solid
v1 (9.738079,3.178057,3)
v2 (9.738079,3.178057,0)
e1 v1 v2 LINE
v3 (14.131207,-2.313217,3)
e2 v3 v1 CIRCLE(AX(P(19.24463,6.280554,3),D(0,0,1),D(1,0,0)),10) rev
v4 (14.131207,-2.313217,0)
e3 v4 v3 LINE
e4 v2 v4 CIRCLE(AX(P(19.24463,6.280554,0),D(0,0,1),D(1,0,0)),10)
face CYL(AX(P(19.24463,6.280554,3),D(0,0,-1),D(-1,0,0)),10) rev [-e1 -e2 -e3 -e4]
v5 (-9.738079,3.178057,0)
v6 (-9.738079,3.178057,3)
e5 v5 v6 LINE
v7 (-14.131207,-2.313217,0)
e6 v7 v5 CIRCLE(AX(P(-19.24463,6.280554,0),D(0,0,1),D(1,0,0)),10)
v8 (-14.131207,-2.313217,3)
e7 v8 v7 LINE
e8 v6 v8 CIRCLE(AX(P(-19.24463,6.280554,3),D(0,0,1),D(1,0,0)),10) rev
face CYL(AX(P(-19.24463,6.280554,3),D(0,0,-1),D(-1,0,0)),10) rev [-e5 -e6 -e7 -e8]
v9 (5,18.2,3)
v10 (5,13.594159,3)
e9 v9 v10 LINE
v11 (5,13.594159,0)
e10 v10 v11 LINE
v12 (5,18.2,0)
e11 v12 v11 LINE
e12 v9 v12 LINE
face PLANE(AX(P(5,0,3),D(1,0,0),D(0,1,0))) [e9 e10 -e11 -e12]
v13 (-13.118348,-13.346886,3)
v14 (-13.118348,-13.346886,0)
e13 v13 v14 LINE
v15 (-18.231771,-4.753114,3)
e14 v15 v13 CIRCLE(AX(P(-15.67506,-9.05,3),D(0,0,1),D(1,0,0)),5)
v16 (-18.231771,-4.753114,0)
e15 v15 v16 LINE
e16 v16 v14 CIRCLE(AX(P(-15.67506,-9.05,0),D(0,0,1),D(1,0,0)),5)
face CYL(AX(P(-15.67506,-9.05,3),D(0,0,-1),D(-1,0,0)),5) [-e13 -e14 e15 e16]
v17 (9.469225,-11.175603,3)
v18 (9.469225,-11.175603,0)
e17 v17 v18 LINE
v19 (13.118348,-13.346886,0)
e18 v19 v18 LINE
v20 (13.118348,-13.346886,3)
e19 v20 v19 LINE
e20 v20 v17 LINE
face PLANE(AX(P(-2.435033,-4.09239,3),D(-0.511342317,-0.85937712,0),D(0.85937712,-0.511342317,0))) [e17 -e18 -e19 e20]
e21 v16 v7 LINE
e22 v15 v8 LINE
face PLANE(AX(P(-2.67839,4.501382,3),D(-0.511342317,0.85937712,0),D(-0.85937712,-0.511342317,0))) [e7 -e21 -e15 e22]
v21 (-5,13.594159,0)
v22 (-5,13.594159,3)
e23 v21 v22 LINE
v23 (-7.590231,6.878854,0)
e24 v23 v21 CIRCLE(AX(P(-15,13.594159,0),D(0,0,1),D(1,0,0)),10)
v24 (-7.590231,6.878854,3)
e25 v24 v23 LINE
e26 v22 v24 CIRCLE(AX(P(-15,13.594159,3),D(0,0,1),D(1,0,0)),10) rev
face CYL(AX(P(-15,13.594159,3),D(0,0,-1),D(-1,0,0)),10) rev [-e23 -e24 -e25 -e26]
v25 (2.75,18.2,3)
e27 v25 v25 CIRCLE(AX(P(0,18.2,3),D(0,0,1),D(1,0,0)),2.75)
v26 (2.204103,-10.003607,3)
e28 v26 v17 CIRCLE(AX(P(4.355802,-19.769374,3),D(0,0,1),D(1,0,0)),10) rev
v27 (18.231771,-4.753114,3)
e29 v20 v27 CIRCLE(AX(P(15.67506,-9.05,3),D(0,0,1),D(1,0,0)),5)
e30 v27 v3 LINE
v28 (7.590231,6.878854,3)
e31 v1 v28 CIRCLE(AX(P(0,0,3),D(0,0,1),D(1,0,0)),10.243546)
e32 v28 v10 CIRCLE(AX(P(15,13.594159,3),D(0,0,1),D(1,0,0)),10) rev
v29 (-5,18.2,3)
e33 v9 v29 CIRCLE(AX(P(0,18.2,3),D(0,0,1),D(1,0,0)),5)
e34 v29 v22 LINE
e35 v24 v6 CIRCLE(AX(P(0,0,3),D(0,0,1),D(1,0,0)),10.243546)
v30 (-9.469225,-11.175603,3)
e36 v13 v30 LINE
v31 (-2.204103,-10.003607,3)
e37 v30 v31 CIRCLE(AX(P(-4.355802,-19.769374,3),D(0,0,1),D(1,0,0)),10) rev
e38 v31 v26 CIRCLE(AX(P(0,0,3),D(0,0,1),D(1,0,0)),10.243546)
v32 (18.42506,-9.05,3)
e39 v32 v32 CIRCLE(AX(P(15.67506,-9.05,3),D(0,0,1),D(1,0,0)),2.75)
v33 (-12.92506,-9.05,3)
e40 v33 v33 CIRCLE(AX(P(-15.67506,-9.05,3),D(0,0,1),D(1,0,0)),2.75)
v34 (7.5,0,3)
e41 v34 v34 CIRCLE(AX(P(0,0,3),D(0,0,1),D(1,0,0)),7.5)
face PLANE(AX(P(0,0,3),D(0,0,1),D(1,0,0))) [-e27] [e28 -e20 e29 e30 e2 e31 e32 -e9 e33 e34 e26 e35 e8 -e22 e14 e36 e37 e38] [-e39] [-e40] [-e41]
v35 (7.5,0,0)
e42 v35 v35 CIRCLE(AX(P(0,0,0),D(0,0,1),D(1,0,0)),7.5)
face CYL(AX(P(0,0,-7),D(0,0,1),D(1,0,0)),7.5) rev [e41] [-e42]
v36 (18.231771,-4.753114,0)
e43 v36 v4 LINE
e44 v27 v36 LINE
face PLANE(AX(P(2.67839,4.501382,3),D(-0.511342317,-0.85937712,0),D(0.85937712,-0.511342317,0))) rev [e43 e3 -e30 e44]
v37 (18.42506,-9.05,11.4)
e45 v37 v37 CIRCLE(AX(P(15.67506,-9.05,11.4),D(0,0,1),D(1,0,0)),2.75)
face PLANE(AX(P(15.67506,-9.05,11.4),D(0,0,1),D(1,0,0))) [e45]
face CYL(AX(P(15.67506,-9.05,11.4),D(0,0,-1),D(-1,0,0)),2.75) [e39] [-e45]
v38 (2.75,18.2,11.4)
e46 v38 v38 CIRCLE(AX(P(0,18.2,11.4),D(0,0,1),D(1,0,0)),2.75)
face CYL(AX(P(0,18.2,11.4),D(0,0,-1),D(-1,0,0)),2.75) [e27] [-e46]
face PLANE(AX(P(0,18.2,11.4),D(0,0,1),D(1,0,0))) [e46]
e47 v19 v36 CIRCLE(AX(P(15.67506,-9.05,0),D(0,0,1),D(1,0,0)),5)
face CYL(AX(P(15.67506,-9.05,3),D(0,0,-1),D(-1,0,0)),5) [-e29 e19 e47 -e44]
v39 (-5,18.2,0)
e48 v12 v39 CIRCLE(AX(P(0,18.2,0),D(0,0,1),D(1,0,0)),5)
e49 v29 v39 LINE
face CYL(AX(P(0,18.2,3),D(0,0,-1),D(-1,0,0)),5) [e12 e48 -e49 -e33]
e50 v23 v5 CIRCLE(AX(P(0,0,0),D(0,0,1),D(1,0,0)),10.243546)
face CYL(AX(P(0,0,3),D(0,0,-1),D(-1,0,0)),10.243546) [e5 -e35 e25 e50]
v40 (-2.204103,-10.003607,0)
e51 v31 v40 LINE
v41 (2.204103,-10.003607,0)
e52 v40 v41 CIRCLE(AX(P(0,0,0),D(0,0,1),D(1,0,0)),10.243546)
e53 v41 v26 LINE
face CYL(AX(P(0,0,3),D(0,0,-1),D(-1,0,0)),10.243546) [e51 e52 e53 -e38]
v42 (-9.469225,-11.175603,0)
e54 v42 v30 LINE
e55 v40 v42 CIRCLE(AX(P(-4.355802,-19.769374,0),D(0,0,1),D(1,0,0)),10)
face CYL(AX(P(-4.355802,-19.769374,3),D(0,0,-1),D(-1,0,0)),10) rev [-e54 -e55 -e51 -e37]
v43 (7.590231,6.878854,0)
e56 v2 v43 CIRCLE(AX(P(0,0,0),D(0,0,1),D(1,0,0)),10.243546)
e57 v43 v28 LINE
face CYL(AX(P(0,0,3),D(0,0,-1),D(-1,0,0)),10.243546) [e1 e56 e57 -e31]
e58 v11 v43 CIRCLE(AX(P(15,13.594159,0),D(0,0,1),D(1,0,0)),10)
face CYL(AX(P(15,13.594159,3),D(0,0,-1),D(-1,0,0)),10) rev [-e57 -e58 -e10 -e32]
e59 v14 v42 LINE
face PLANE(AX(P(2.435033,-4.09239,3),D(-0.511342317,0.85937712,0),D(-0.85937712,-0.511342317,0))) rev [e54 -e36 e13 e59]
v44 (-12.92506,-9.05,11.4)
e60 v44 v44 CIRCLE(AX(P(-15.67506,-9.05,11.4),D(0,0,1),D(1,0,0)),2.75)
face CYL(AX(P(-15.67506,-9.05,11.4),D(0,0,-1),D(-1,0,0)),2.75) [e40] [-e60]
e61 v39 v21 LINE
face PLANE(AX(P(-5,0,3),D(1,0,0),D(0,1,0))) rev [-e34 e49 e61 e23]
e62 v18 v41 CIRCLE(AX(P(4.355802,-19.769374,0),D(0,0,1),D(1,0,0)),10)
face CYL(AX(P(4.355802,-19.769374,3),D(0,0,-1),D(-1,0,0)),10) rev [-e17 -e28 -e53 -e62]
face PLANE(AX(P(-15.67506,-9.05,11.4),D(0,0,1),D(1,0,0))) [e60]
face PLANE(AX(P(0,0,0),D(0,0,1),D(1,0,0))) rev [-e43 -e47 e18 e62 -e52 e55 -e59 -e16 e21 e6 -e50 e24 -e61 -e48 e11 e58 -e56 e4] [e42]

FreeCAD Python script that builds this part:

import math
import FreeCAD as App
import Part
import Sketcher


def edges_at(feature, points):
    """Names of the edges that pass closest to the given points."""
    edges = feature.Shape.Edges
    near = lambda p: min(range(len(edges)), key=lambda i: edges[i].distToShape(Part.Vertex(*p))[0])
    return sorted({f"Edge{near(p) + 1}" for p in points})

doc = App.newDocument("Part")
body = doc.addObject("PartDesign::Body", "Body")

# Sketch on XY plane
sketch1 = body.newObject("Sketcher::SketchObject", "Sketch")
sketch1.AttachmentSupport = (doc.getObject("XY_Plane"), [""])
sketch1.MapMode = "FlatFace"
sketch1.addGeometry([
    Part.LineSegment(App.Vector(-13, -13, 0), App.Vector(-5, -9, 0)),  # 0
    Part.ArcOfCircle(Part.Circle(App.Vector(0, 0, 0), App.Vector(0, 0, 1), 10), math.radians(-122), math.radians(-58)),  # 1
    Part.LineSegment(App.Vector(5, -9, 0), App.Vector(13, -13, 0)),  # 2
    Part.ArcOfCircle(Part.Circle(App.Vector(16, -9, 0), App.Vector(0, 0, 1), 5), math.radians(-121), math.radians(59)),  # 3
    Part.LineSegment(App.Vector(18, -5, 0), App.Vector(10, 0, 0)),  # 4
    Part.ArcOfCircle(Part.Circle(App.Vector(0, 0, 0), App.Vector(0, 0, 1), 10), math.radians(0), math.radians(61)),  # 5
    Part.LineSegment(App.Vector(5, 9, 0), App.Vector(5, 18, 0)),  # 6
    Part.ArcOfCircle(Part.Circle(App.Vector(0, 18, 0), App.Vector(0, 0, 1), 5), math.radians(0), math.radians(180)),  # 7
    Part.LineSegment(App.Vector(-5, 18, 0), App.Vector(-5, 9, 0)),  # 8
    Part.ArcOfCircle(Part.Circle(App.Vector(0, 0, 0), App.Vector(0, 0, 1), 10), math.radians(119), math.radians(180)),  # 9
    Part.LineSegment(App.Vector(-10, 0, 0), App.Vector(-18, -5, 0)),  # 10
    Part.ArcOfCircle(Part.Circle(App.Vector(-16, -9, 0), App.Vector(0, 0, 1), 5), math.radians(121), math.radians(301)),  # 11
], False)
sketch1.addConstraint([
    Sketcher.Constraint("Coincident", 0, 2, 1, 1),
    Sketcher.Constraint("Coincident", 1, 2, 2, 1),
    Sketcher.Constraint("Tangent", 2, 2, 3, 1),
    Sketcher.Constraint("Tangent", 3, 2, 4, 1),
    Sketcher.Constraint("Coincident", 4, 2, 5, 1),
    Sketcher.Constraint("Coincident", 5, 2, 6, 1),
    Sketcher.Constraint("Tangent", 6, 2, 7, 1),
    Sketcher.Constraint("Tangent", 7, 2, 8, 1),
    Sketcher.Constraint("Coincident", 8, 2, 9, 1),
    Sketcher.Constraint("Coincident", 9, 2, 10, 1),
    Sketcher.Constraint("Tangent", 10, 2, 11, 1),
    Sketcher.Constraint("Tangent", 11, 2, 0, 1),
    Sketcher.Constraint("Vertical", 6),
    Sketcher.Constraint("Vertical", 8),
    Sketcher.Constraint("Coincident", 1, 3, -1, 1),
    Sketcher.Constraint("Coincident", 5, 3, -1, 1),
    Sketcher.Constraint("Coincident", 9, 3, -1, 1),
    Sketcher.Constraint("Equal", 1, 5),
    Sketcher.Constraint("Equal", 3, 7),
    Sketcher.Constraint("Equal", 5, 9),
    Sketcher.Constraint("Equal", 7, 11),
    Sketcher.Constraint("Symmetric", 3, 3, 11, 3, -2),
    Sketcher.Constraint("PointOnObject", 7, 3, -2),
    Sketcher.Constraint("PointOnObject", 4, 2, -1),
    Sketcher.Constraint("PointOnObject", 9, 2, -1),
    Sketcher.Constraint("Parallel", 2, 4),
    Sketcher.Constraint("Parallel", 0, 10),
    Sketcher.Constraint("Radius", 3, 5.0),
    Sketcher.Constraint("DistanceY", -1, 1, 7, 3, 18.2),
    Sketcher.Constraint("DistanceY", 3, 3, -1, 1, 9.05),
    Sketcher.Constraint("Radius", 1, 10.243546),
    Sketcher.Constraint("Distance", 0, 9.029081),
])
pad1 = body.newObject("PartDesign::Pad", "Pad")
pad1.Profile = sketch1
pad1.Length = 3

# Sketch on XY plane
sketch2 = body.newObject("Sketcher::SketchObject", "Sketch001")
sketch2.AttachmentSupport = (doc.getObject("XY_Plane"), [""])
sketch2.MapMode = "FlatFace"
sketch2.AttachmentOffset = App.Placement(App.Vector(0, 0, 3), App.Rotation())
sketch2.addGeometry(Part.Circle(App.Vector(0, 0, 0), App.Vector(0, 0, 1), 8), False)
sketch2.addConstraint([
    Sketcher.Constraint("Coincident", 0, 3, -1, 1),
    Sketcher.Constraint("Diameter", 0, 15.0),
])
pocket1 = body.newObject("PartDesign::Pocket", "Pocket")
pocket1.Profile = sketch2
pocket1.Length = 10
doc.recompute()

fillet = body.newObject("PartDesign::Fillet", "Fillet")
fillet.Base = (pocket1, edges_at(pocket1, [
    (-10.244, 0, 1.5),
    (-5, 8.94, 1.5),
    (5, 8.94, 1.5),
    (10.244, 0, 1.5),
    (5.359, -8.73, 1.5),
    (-5.359, -8.73, 1.5),
]))
fillet.Radius = 10

# Sketch on XY plane
sketch3 = body.newObject("Sketcher::SketchObject", "Sketch002")
sketch3.AttachmentSupport = (doc.getObject("XY_Plane"), [""])
sketch3.MapMode = "FlatFace"
sketch3.AttachmentOffset = App.Placement(App.Vector(0, 0, 3), App.Rotation())
sketch3.addGeometry([
    Part.Circle(App.Vector(0, 18.2, 0), App.Vector(0, 0, 1), 2.8),
    Part.Circle(App.Vector(15.7, -9.1, 0), App.Vector(0, 0, 1), 2.8),
    Part.Circle(App.Vector(-15.7, -9.1, 0), App.Vector(0, 0, 1), 2.8),
], False)
sketch3.addConstraint([
    Sketcher.Constraint("Equal", 0, 1),
    Sketcher.Constraint("Equal", 1, 2),
    Sketcher.Constraint("Symmetric", 1, 3, 2, 3, -2),
    Sketcher.Constraint("PointOnObject", 0, 3, -2),
    Sketcher.Constraint("Diameter", 0, 5.5),
    Sketcher.Constraint("DistanceY", -1, 1, 0, 3, 18.2),
    Sketcher.Constraint("DistanceY", 1, 3, -1, 1, 9.05),
    Sketcher.Constraint("DistanceX", -1, 1, 1, 3, 15.67506),
])
pad2 = body.newObject("PartDesign::Pad", "Pad001")
pad2.Profile = sketch3
pad2.Length = 8.4

doc.recompute()
